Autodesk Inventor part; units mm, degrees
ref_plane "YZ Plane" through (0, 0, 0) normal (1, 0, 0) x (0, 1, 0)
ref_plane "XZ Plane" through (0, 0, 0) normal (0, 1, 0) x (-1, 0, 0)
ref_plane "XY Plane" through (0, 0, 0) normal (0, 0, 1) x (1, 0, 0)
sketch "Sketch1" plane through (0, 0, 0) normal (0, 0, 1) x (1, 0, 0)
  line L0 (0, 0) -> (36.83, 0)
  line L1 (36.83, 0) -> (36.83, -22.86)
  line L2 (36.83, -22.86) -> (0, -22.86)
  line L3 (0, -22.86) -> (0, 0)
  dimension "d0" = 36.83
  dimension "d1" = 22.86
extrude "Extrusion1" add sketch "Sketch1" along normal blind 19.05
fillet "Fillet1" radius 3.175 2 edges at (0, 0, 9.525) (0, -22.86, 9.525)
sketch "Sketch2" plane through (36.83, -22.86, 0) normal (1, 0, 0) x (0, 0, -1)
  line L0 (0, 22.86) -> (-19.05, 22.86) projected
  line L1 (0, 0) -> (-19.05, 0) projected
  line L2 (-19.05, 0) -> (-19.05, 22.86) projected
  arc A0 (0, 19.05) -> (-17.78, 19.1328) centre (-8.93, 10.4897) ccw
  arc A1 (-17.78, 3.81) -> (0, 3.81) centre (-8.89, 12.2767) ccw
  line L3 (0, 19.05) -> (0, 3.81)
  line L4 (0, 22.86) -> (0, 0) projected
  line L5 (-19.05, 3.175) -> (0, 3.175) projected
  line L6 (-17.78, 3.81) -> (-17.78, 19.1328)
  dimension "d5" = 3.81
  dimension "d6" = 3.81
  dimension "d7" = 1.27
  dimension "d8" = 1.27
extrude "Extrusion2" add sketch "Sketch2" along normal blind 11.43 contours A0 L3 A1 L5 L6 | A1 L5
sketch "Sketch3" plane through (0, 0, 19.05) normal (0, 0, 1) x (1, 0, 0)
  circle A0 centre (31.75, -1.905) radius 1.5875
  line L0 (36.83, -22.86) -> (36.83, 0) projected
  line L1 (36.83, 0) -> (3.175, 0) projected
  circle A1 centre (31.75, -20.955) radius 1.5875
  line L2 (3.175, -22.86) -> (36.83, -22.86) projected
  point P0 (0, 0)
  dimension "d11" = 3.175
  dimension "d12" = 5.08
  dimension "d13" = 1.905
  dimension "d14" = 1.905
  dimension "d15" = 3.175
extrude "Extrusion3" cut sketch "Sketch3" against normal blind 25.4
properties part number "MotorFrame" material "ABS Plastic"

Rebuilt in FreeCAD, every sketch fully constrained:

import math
import FreeCAD as App
import Part
import Sketcher
Q = App.Units.Quantity


def edges_at(feature, points):
    """Names of the edges that pass closest to the given points."""
    edges = feature.Shape.Edges
    near = lambda p: min(range(len(edges)), key=lambda i: edges[i].distToShape(Part.Vertex(*p))[0])
    return sorted({f"Edge{near(p) + 1}" for p in points})


def add_polygon(sketch, points):
    """Adds a closed chain of lines whose ends are joined by coincident constraints."""
    first, n = sketch.GeometryCount, len(points)
    for a, b in zip(points, points[1:] + points[:1]):
        sketch.addGeometry(Part.LineSegment(App.Vector(*a, 0), App.Vector(*b, 0)), False)
    for i in range(n):
        sketch.addConstraint(Sketcher.Constraint("Coincident", first + i, 2, first + (i + 1) % n, 1))

doc = App.newDocument("Part")
body = doc.addObject("PartDesign::Body", "Body")

# Sketch on XY plane
sketch1 = body.newObject("Sketcher::SketchObject", "Sketch")
sketch1.AttachmentSupport = (doc.getObject("XY_Plane"), [""])
sketch1.MapMode = "FlatFace"
add_polygon(sketch1, [(37, 0), (0, 0), (0, -23), (37, -23)])  # lines 0-3
sketch1.addConstraint([
    Sketcher.Constraint("Horizontal", 0),
    Sketcher.Constraint("Vertical", 1),
    Sketcher.Constraint("Horizontal", 2),
    Sketcher.Constraint("Vertical", 3),
    Sketcher.Constraint("Coincident", 0, 2, -1, 1),
    Sketcher.Constraint("DistanceY", 1, 2, 1, 1, Q("0.9 in")),
    Sketcher.Constraint("DistanceX", 0, 2, 0, 1, Q("1.45 in")),
])
pad1 = body.newObject("PartDesign::Pad", "Pad")
pad1.Profile = sketch1
pad1.Length = Q("0.75 in")
doc.recompute()

fillet = body.newObject("PartDesign::Fillet", "Fillet")
fillet.Base = (pad1, edges_at(pad1, [(0, 0, 9.525), (0, -22.86, 9.525)]))
fillet.Radius = Q("0.125 in")

# Sketch on YZ plane
sketch2 = body.newObject("Sketcher::SketchObject", "Sketch001")
sketch2.AttachmentSupport = (doc.getObject("YZ_Plane"), [""])
sketch2.MapMode = "FlatFace"
sketch2.AttachmentOffset = App.Placement(App.Vector(0, 0, 1.45 * 25.4), App.Rotation())
sketch2.addGeometry([
    Part.ArcOfCircle(Part.Circle(App.Vector(-12, 9, 0), App.Vector(0, 0, 1), 12), math.radians(-46), math.radians(46)),
    Part.LineSegment(App.Vector(-4, 18, 0), App.Vector(-19, 18, 0)),
    Part.ArcOfCircle(Part.Circle(App.Vector(-11, 9, 0), App.Vector(0, 0, 1), 12), math.radians(134), math.radians(226)),
    Part.LineSegment(App.Vector(-19, 0, 0), App.Vector(-4, 0, 0)),
], False)
sketch2.addConstraint([
    Sketcher.Constraint("Coincident", 0, 2, 1, 1),
    Sketcher.Constraint("Coincident", 1, 2, 2, 1),
    Sketcher.Constraint("Coincident", 2, 2, 3, 1),
    Sketcher.Constraint("Coincident", 3, 2, 0, 1),
    Sketcher.Constraint("Horizontal", 1),
    Sketcher.Constraint("Horizontal", 3),
    Sketcher.Constraint("PointOnObject", 2, 2, -1),
    Sketcher.Constraint("Vertical", 1, 2, 2, 2),
    Sketcher.Constraint("DistanceX", 3, 2, -1, 1, Q("0.15 in")),
    Sketcher.Constraint("DistanceX", 3, 1, 3, 2, Q("0.6 in")),
    Sketcher.Constraint("DistanceY", -1, 1, 0, 2, Q("0.7 in")),
    Sketcher.Constraint("Radius", 0, 12.3703),
    Sketcher.Constraint("Radius", 2, 12.2767),
    Sketcher.Constraint("DistanceX", 1, 2, 1, 1, 15.3228),
])
pad2 = body.newObject("PartDesign::Pad", "Pad001")
pad2.Profile = sketch2
pad2.Length = Q("0.45 in")

# Sketch on XY plane
sketch3 = body.newObject("Sketcher::SketchObject", "Sketch002")
sketch3.AttachmentSupport = (doc.getObject("XY_Plane"), [""])
sketch3.MapMode = "FlatFace"
sketch3.AttachmentOffset = App.Placement(App.Vector(0, 0, 0.75 * 25.4), App.Rotation())
sketch3.addGeometry([
    Part.Circle(App.Vector(31.8, -1.9, 0), App.Vector(0, 0, 1), 1.6),
    Part.Circle(App.Vector(31.8, -21, 0), App.Vector(0, 0, 1), 1.6),
], False)
sketch3.addConstraint([
    Sketcher.Constraint("Equal", 0, 1),
    Sketcher.Constraint("Vertical", 0, 3, 1, 3),
    Sketcher.Constraint("Diameter", 0, Q("0.125 in")),
    Sketcher.Constraint("DistanceY", 0, 3, -1, 1, Q("0.075 in")),
    Sketcher.Constraint("DistanceX", -1, 1, 0, 3, Q("1.25 in")),
    Sketcher.Constraint("DistanceY", 1, 3, 0, 3, Q("0.75 in")),
])
pocket1 = body.newObject("PartDesign::Pocket", "Pocket")
pocket1.Profile = sketch3
pocket1.Length = Q("1 in")

doc.recompute()
